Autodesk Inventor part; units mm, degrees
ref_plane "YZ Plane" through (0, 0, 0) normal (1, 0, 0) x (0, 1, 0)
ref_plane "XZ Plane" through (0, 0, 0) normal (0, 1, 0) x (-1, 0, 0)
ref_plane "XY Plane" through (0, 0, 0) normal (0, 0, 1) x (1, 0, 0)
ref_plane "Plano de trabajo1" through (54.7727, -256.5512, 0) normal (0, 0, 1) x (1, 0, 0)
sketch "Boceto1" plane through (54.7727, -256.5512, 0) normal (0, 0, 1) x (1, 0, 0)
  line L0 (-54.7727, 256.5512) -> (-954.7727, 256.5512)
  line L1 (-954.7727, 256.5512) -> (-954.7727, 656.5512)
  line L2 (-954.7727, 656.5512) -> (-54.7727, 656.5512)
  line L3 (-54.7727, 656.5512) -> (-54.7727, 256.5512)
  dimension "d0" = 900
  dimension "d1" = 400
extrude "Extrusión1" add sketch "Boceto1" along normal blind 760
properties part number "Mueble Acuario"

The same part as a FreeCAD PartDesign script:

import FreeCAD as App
import Part
import Sketcher
from FreeCAD import Vector
Q = App.Units.Quantity

doc = App.newDocument("Part")
body = doc.addObject("PartDesign::Body", "Body")

# Sketch on XY plane
sketch1 = body.newObject("Sketcher::SketchObject", "Sketch")
sketch1.AttachmentSupport = (doc.getObject("XY_Plane"), [""])
sketch1.MapMode = "FlatFace"
sketch1.addGeometry([
    Part.LineSegment(Vector(-900, 0, 0), Vector(0, 0, 0)),
    Part.LineSegment(Vector(0, 0, 0), Vector(0, 400, 0)),
    Part.LineSegment(Vector(0, 400, 0), Vector(-900, 400, 0)),
    Part.LineSegment(Vector(-900, 400, 0), Vector(-900, 0, 0)),
], False)
sketch1.addConstraint([
    Sketcher.Constraint("Coincident", 0, 2, 1, 1),
    Sketcher.Constraint("Coincident", 1, 2, 2, 1),
    Sketcher.Constraint("Coincident", 2, 2, 3, 1),
    Sketcher.Constraint("Coincident", 3, 2, 0, 1),
    Sketcher.Constraint("Horizontal", 0),
    Sketcher.Constraint("Vertical", 1),
    Sketcher.Constraint("Horizontal", 2),
    Sketcher.Constraint("Vertical", 3),
    Sketcher.Constraint("Coincident", 0, 2, -1, 1),
    Sketcher.Constraint("DistanceX", 0, 1, 0, 2, Q("900 mm")),
    Sketcher.Constraint("DistanceY", 1, 1, 1, 2, Q("400 mm")),
])
pad1 = body.newObject("PartDesign::Pad", "Pad")
pad1.Profile = sketch1
pad1.Length = 760

doc.recompute()
